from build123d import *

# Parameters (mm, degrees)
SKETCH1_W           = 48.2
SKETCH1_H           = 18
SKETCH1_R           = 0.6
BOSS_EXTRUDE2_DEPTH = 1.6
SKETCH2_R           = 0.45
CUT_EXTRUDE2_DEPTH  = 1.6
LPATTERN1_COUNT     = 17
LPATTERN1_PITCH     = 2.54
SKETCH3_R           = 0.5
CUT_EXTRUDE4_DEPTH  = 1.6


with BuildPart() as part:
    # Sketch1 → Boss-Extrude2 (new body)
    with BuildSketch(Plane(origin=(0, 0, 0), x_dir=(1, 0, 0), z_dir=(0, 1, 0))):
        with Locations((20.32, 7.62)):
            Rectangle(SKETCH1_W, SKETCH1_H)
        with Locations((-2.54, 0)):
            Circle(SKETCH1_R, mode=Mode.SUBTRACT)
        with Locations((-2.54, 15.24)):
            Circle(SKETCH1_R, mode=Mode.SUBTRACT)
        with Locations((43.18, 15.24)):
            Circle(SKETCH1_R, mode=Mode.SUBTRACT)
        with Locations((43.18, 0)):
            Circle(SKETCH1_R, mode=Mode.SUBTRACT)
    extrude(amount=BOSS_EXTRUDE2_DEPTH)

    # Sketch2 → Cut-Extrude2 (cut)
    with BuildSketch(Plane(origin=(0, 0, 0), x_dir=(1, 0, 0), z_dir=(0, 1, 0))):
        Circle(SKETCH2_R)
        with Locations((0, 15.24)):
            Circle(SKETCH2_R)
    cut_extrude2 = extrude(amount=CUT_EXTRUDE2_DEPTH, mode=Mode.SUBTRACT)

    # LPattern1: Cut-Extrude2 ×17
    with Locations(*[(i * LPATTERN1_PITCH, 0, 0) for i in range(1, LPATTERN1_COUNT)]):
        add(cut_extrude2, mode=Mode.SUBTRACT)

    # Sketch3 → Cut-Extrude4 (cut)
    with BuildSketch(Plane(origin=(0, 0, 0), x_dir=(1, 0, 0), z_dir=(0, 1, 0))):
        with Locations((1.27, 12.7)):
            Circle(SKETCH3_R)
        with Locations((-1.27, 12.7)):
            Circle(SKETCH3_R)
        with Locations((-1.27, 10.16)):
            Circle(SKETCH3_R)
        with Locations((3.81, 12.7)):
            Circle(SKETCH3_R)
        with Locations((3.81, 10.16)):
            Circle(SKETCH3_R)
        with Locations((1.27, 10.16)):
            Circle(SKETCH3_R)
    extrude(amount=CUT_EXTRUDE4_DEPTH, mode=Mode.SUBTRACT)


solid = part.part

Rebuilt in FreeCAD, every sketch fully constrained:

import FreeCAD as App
import Part
import Sketcher
from FreeCAD import Vector
Q = App.Units.Quantity

doc = App.newDocument("Part")
params = doc.addObject("Spreadsheet::Sheet", "Params")
for row, (alias, value) in enumerate([
    ("sketch1_diameter", "1.2 mm"),
    ("sketch1_height", "18 mm"),
    ("sketch1_width", "48.2 mm"),
    ("pad1_length", "1.6 mm"),
    ("sketch2_diameter", "0.9 mm"),
    ("pocket1_length", "1.6 mm"),
    ("linearpattern_pitch", "2.54 mm"),
    ("sketch3_diameter", "1 mm"),
    ("pocket2_length", "1.6 mm"),
], start=1):
    params.set(f"A{row}", alias)
    params.set(f"B{row}", "=" + value)
    params.setAlias(f"B{row}", alias)

body = doc.addObject("PartDesign::Body", "Body")

sketch1 = body.newObject("Sketcher::SketchObject", "Sketch")
sketch1.AttachmentSupport = (doc.getObject("XZ_Plane"), [""])
sketch1.MapMode = "FlatFace"
sketch1.addGeometry(Part.LineSegment(Vector(-3.8, -16.6, 0), Vector(-3.8, 1.4, 0)), False)
sketch1.addGeometry(Part.LineSegment(Vector(-3.8, 1.4, 0), Vector(44.4, 1.4, 0)), False)
sketch1.addGeometry(Part.LineSegment(Vector(44.4, 1.4, 0), Vector(44.4, -16.6, 0)), False)
sketch1.addGeometry(Part.LineSegment(Vector(44.4, -16.6, 0), Vector(-3.8, -16.6, 0)), False)
sketch1.addGeometry(Part.Circle(Vector(-2.5, 0, 0), Vector(0, 0, 1), 0.6), False)
sketch1.addGeometry(Part.Circle(Vector(43.2, 0, 0), Vector(0, 0, 1), 0.6), False)
sketch1.addGeometry(Part.Circle(Vector(-2.5, -15.2, 0), Vector(0, 0, 1), 0.6), False)
sketch1.addGeometry(Part.Circle(Vector(43.2, -15.2, 0), Vector(0, 0, 1), 0.6), False)
sketch1.addConstraint(Sketcher.Constraint("Coincident", 0, 2, 1, 1))
sketch1.addConstraint(Sketcher.Constraint("Coincident", 1, 2, 2, 1))
sketch1.addConstraint(Sketcher.Constraint("Coincident", 2, 2, 3, 1))
sketch1.addConstraint(Sketcher.Constraint("Coincident", 3, 2, 0, 1))
sketch1.addConstraint(Sketcher.Constraint("Vertical", 0))
sketch1.addConstraint(Sketcher.Constraint("Horizontal", 1))
sketch1.addConstraint(Sketcher.Constraint("Vertical", 2))
sketch1.addConstraint(Sketcher.Constraint("Horizontal", 3))
sketch1.addConstraint(Sketcher.Constraint("Equal", 4, 5))
sketch1.addConstraint(Sketcher.Constraint("Equal", 5, 6))
sketch1.addConstraint(Sketcher.Constraint("Equal", 6, 7))
sketch1.addConstraint(Sketcher.Constraint("PointOnObject", 4, 3, -1))
sketch1.addConstraint(Sketcher.Constraint("PointOnObject", 5, 3, -1))
sketch1.addConstraint(Sketcher.Constraint("Horizontal", 6, 3, 7, 3))
sketch1.addConstraint(Sketcher.Constraint("Vertical", 4, 3, 6, 3))
sketch1.addConstraint(Sketcher.Constraint("Vertical", 5, 3, 7, 3))
sketch1.addConstraint(Sketcher.Constraint("Diameter", 4, Q("1.2 mm")))
sketch1.addConstraint(Sketcher.Constraint("DistanceY", 0, 1, 0, 2, Q("18 mm")))
sketch1.addConstraint(Sketcher.Constraint("DistanceX", 1, 1, 1, 2, Q("48.2 mm")))
sketch1.addConstraint(Sketcher.Constraint("DistanceX", 4, 3, -1, 1, Q("2.54 mm")))
sketch1.addConstraint(Sketcher.Constraint("DistanceX", -1, 1, 5, 3, Q("43.18 mm")))
sketch1.addConstraint(Sketcher.Constraint("DistanceY", 6, 3, -1, 1, Q("15.24 mm")))
sketch1.addConstraint(Sketcher.Constraint("DistanceX", 0, 2, -1, 1, Q("3.78 mm")))
sketch1.addConstraint(Sketcher.Constraint("DistanceY", -1, 1, 0, 2, Q("1.38 mm")))
sketch1.setExpression("Constraints[16]", "Params.sketch1_diameter")
sketch1.setExpression("Constraints[17]", "Params.sketch1_height")
sketch1.setExpression("Constraints[18]", "Params.sketch1_width")
pad1 = body.newObject("PartDesign::Pad", "Pad")
pad1.Profile = sketch1
pad1.setExpression("Length", "Params.pad1_length")
pad1.Reversed = True

sketch2 = body.newObject("Sketcher::SketchObject", "Sketch001")
sketch2.AttachmentSupport = (doc.getObject("XZ_Plane"), [""])
sketch2.MapMode = "FlatFace"
sketch2.addGeometry(Part.Circle(Vector(0, 0, 0), Vector(0, 0, 1), 0.45), False)
sketch2.addGeometry(Part.Circle(Vector(0, -15.24, 0), Vector(0, 0, 1), 0.45), False)
sketch2.addConstraint(Sketcher.Constraint("Coincident", 0, 3, -1, 1))
sketch2.addConstraint(Sketcher.Constraint("Equal", 0, 1))
sketch2.addConstraint(Sketcher.Constraint("PointOnObject", 1, 3, -2))
sketch2.addConstraint(Sketcher.Constraint("Diameter", 0, Q("0.9 mm")))
sketch2.addConstraint(Sketcher.Constraint("DistanceY", 1, 3, -1, 1, Q("15.24 mm")))
sketch2.setExpression("Constraints[3]", "Params.sketch2_diameter")
pocket1 = body.newObject("PartDesign::Pocket", "Pocket")
pocket1.Profile = sketch2
pocket1.setExpression("Length", "Params.pocket1_length")
doc.recompute()

linearpattern = body.newObject("PartDesign::LinearPattern", "LinearPattern")
linearpattern.Originals = [pocket1]
linearpattern.Direction = (doc.getObject("X_Axis"), [""])
linearpattern.Mode = "offset"
linearpattern.setExpression("Offset", "Params.linearpattern_pitch")
linearpattern.Occurrences = 17
body.Tip = linearpattern

sketch3 = body.newObject("Sketcher::SketchObject", "Sketch002")
sketch3.AttachmentSupport = (doc.getObject("XZ_Plane"), [""])
sketch3.MapMode = "FlatFace"
sketch3.addGeometry(Part.Circle(Vector(1.3, -12.7, 0), Vector(0, 0, 1), 0.5), False)
sketch3.addGeometry(Part.Circle(Vector(-1.3, -12.7, 0), Vector(0, 0, 1), 0.5), False)
sketch3.addGeometry(Part.Circle(Vector(-1.3, -10.2, 0), Vector(0, 0, 1), 0.5), False)
sketch3.addGeometry(Part.Circle(Vector(3.8, -12.7, 0), Vector(0, 0, 1), 0.5), False)
sketch3.addGeometry(Part.Circle(Vector(3.8, -10.2, 0), Vector(0, 0, 1), 0.5), False)
sketch3.addGeometry(Part.Circle(Vector(1.3, -10.2, 0), Vector(0, 0, 1), 0.5), False)
sketch3.addConstraint(Sketcher.Constraint("Equal", 0, 1))
sketch3.addConstraint(Sketcher.Constraint("Equal", 1, 2))
sketch3.addConstraint(Sketcher.Constraint("Equal", 2, 3))
sketch3.addConstraint(Sketcher.Constraint("Equal", 3, 4))
sketch3.addConstraint(Sketcher.Constraint("Equal", 4, 5))
sketch3.addConstraint(Sketcher.Constraint("Symmetric", 0, 3, 1, 3, -2))
sketch3.addConstraint(Sketcher.Constraint("Symmetric", 2, 3, 5, 3, -2))
sketch3.addConstraint(Sketcher.Constraint("Horizontal", 1, 3, 3, 3))
sketch3.addConstraint(Sketcher.Constraint("Horizontal", 2, 3, 4, 3))
sketch3.addConstraint(Sketcher.Constraint("Vertical", 1, 3, 2, 3))
sketch3.addConstraint(Sketcher.Constraint("Vertical", 3, 3, 4, 3))
sketch3.addConstraint(Sketcher.Constraint("Diameter", 0, Q("1 mm")))
sketch3.addConstraint(Sketcher.Constraint("DistanceY", 0, 3, -1, 1, Q("12.7 mm")))
sketch3.addConstraint(Sketcher.Constraint("DistanceX", -1, 1, 0, 3, Q("1.27 mm")))
sketch3.addConstraint(Sketcher.Constraint("DistanceY", 2, 3, -1, 1, Q("10.16 mm")))
sketch3.addConstraint(Sketcher.Constraint("DistanceX", -1, 1, 3, 3, Q("3.81 mm")))
sketch3.setExpression("Constraints[11]", "Params.sketch3_diameter")
pocket2 = body.newObject("PartDesign::Pocket", "Pocket001")
pocket2.Profile = sketch3
pocket2.setExpression("Length", "Params.pocket2_length")

doc.recompute()
